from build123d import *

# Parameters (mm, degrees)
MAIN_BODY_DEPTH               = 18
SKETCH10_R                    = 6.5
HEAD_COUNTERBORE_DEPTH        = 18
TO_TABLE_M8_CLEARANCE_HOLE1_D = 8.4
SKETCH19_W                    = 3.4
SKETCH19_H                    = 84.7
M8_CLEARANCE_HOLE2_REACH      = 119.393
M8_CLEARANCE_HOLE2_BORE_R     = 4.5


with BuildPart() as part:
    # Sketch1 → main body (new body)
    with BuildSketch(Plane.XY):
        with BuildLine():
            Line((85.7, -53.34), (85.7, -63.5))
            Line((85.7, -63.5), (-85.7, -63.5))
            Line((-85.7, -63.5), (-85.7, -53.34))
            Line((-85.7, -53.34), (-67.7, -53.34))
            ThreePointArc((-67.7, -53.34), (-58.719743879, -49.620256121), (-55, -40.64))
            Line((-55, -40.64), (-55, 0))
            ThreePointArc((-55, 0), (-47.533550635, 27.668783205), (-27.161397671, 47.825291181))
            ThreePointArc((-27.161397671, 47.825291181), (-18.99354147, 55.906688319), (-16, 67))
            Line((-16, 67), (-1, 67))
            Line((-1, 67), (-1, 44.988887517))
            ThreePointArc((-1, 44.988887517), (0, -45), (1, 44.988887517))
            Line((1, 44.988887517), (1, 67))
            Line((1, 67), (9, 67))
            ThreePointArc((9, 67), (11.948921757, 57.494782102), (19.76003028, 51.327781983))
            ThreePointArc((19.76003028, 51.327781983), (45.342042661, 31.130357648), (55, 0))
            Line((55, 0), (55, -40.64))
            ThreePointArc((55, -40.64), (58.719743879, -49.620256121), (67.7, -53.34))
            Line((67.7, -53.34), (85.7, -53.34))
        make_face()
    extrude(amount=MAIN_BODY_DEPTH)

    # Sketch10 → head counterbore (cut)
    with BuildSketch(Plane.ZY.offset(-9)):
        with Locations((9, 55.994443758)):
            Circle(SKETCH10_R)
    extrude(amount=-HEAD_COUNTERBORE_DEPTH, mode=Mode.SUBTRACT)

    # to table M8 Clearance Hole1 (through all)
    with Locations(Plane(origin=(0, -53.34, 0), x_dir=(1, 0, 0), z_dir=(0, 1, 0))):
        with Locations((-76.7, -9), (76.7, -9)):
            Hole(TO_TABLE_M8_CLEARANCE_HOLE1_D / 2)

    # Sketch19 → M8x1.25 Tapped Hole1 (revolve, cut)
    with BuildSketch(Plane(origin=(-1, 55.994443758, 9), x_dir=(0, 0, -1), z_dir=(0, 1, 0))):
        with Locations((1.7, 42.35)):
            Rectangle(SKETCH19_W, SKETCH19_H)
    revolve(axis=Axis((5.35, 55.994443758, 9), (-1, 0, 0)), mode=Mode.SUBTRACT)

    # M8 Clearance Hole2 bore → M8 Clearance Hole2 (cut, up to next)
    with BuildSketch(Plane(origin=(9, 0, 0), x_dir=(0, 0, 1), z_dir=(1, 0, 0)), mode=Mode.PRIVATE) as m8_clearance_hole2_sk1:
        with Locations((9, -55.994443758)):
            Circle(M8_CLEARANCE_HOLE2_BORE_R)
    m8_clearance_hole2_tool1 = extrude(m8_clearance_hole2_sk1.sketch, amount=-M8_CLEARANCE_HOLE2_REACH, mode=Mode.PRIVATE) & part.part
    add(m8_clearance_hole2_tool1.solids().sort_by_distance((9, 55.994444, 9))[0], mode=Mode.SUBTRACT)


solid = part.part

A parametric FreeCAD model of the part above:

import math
import FreeCAD as App
import Part
import Sketcher
Q = App.Units.Quantity

doc = App.newDocument("Part")
body = doc.addObject("PartDesign::Body", "Body")

sketch1 = body.newObject("Sketcher::SketchObject", "Sketch")
sketch1.AttachmentSupport = (doc.getObject("XY_Plane"), [""])
sketch1.MapMode = "FlatFace"
sketch1.addGeometry([
    Part.LineSegment(App.Vector(85.7, -63.5, 0), App.Vector(85.7, -53.34, 0)),
    Part.LineSegment(App.Vector(85.7, -53.34, 0), App.Vector(67.7, -53.34, 0)),
    Part.ArcOfCircle(Part.Circle(App.Vector(67.7, -40.64, 0), App.Vector(0, 0, 1), 12.7), math.radians(180), math.radians(270)),
    Part.LineSegment(App.Vector(55, -40.64, 0), App.Vector(55, 0, 0)),
    Part.ArcOfCircle(Part.Circle(App.Vector(0, 0, 0), App.Vector(0, 0, 1), 55), math.radians(0), math.radians(68.944428)),
    Part.ArcOfCircle(Part.Circle(App.Vector(25.793478, 67, 0), App.Vector(0, 0, 1), 16.793478), math.radians(-180), math.radians(-111.055572)),
    Part.LineSegment(App.Vector(9, 67, 0), App.Vector(1, 67, 0)),
    Part.LineSegment(App.Vector(1, 67, 0), App.Vector(1, 44.988888, 0)),
    Part.ArcOfCircle(Part.Circle(App.Vector(0, 0, 0), App.Vector(0, 0, 1), 45), math.radians(91.273344), math.radians(448.726656)),
    Part.LineSegment(App.Vector(-1, 44.988888, 0), App.Vector(-1, 67, 0)),
    Part.LineSegment(App.Vector(-1, 67, 0), App.Vector(-16, 67, 0)),
    Part.ArcOfCircle(Part.Circle(App.Vector(-38.051282, 67, 0), App.Vector(0, 0, 1), 22.051282), math.radians(-60.406476), math.radians(0)),
    Part.ArcOfCircle(Part.Circle(App.Vector(0, 0, 0), App.Vector(0, 0, 1), 55), math.radians(119.593524), math.radians(180)),
    Part.LineSegment(App.Vector(-55, 0, 0), App.Vector(-55, -40.64, 0)),
    Part.ArcOfCircle(Part.Circle(App.Vector(-67.7, -40.64, 0), App.Vector(0, 0, 1), 12.7), math.radians(-90), math.radians(0)),
    Part.LineSegment(App.Vector(-67.7, -53.34, 0), App.Vector(-85.7, -53.34, 0)),
    Part.LineSegment(App.Vector(-85.7, -53.34, 0), App.Vector(-85.7, -63.5, 0)),
    Part.LineSegment(App.Vector(-85.7, -63.5, 0), App.Vector(85.7, -63.5, 0)),
], False)
sketch1.addConstraint([
    Sketcher.Constraint("Coincident", 0, 2, 1, 1),
    Sketcher.Constraint("Tangent", 1, 2, 2, 2),
    Sketcher.Constraint("Tangent", 2, 1, 3, 1),
    Sketcher.Constraint("Tangent", 3, 2, 4, 1),
    Sketcher.Constraint("Tangent", 4, 2, 5, 2),
    Sketcher.Constraint("Coincident", 5, 1, 6, 1),
    Sketcher.Constraint("Coincident", 6, 2, 7, 1),
    Sketcher.Constraint("Coincident", 7, 2, 8, 2),
    Sketcher.Constraint("Coincident", 8, 1, 9, 1),
    Sketcher.Constraint("Coincident", 9, 2, 10, 1),
    Sketcher.Constraint("Coincident", 10, 2, 11, 2),
    Sketcher.Constraint("Tangent", 11, 1, 12, 1),
    Sketcher.Constraint("Tangent", 12, 2, 13, 1),
    Sketcher.Constraint("Tangent", 13, 2, 14, 2),
    Sketcher.Constraint("Tangent", 14, 1, 15, 1),
    Sketcher.Constraint("Coincident", 15, 2, 16, 1),
    Sketcher.Constraint("Coincident", 16, 2, 17, 1),
    Sketcher.Constraint("Coincident", 17, 2, 0, 1),
    Sketcher.Constraint("Vertical", 0),
    Sketcher.Constraint("Horizontal", 1),
    Sketcher.Constraint("Vertical", 3),
    Sketcher.Constraint("Horizontal", 6),
    Sketcher.Constraint("Vertical", 7),
    Sketcher.Constraint("Vertical", 9),
    Sketcher.Constraint("Horizontal", 10),
    Sketcher.Constraint("Vertical", 13),
    Sketcher.Constraint("Horizontal", 15),
    Sketcher.Constraint("Vertical", 16),
    Sketcher.Constraint("Horizontal", 17),
    Sketcher.Constraint("Coincident", 4, 3, -1, 1),
    Sketcher.Constraint("Coincident", 8, 3, -1, 1),
    Sketcher.Constraint("Coincident", 12, 3, -1, 1),
    Sketcher.Constraint("Equal", 4, 12),
    Sketcher.Constraint("Equal", 2, 14),
    Sketcher.Constraint("Symmetric", 6, 2, 9, 2, -2),
    Sketcher.Constraint("Symmetric", 0, 2, 15, 2, -2),
    Sketcher.Constraint("Horizontal", 5, 3, 11, 3),
    Sketcher.Constraint("Horizontal", 11, 3, 5, 1),
    Sketcher.Constraint("Radius", 4, Q("55 mm")),
    Sketcher.Constraint("Radius", 8, Q("45 mm")),
    Sketcher.Constraint("Radius", 2, Q("12.7 mm")),
    Sketcher.Constraint("DistanceX", 1, 2, 1, 1, Q("18 mm")),
    Sketcher.Constraint("DistanceX", 6, 2, 6, 1, Q("8 mm")),
    Sketcher.Constraint("DistanceX", 10, 2, 10, 1, Q("15 mm")),
    Sketcher.Constraint("DistanceY", -1, 1, 5, 3, Q("67 mm")),
    Sketcher.Constraint("DistanceX", -1, 1, 5, 1, Q("9 mm")),
    Sketcher.Constraint("DistanceY", 0, 1, 0, 2, Q("10.16 mm")),
    Sketcher.Constraint("DistanceY", 3, 1, 3, 2, Q("40.64 mm")),
])
pad1 = body.newObject("PartDesign::Pad", "Pad")
pad1.Profile = sketch1
pad1.Length = 18

sketch2 = body.newObject("Sketcher::SketchObject", "Sketch001")
sketch2.AttachmentSupport = (doc.getObject("YZ_Plane"), [""])
sketch2.MapMode = "FlatFace"
sketch2.AttachmentOffset = App.Placement(App.Vector(0, 0, 9), App.Rotation())
sketch2.addGeometry(Part.Circle(App.Vector(55.994444, 9, 0), App.Vector(0, 0, 1), 6.5), False)
sketch2.addConstraint([
    Sketcher.Constraint("Diameter", 0, Q("13 mm")),
    Sketcher.Constraint("DistanceY", -1, 1, 0, 3, Q("9 mm")),
    Sketcher.Constraint("DistanceX", -1, 1, 0, 3, Q("55.994444 mm")),
])
pocket1 = body.newObject("PartDesign::Pocket", "Pocket")
pocket1.Profile = sketch2
pocket1.Length = 18
pocket1.Reversed = True

sketch3 = body.newObject("Sketcher::SketchObject", "Sketch002")
sketch3.AttachmentSupport = (doc.getObject("XZ_Plane"), [""])
sketch3.MapMode = "FlatFace"
sketch3.AttachmentOffset = App.Placement(App.Vector(0, 0, 53.34), App.Rotation())
sketch3.addGeometry([
    Part.Circle(App.Vector(-76.7, 9, 0), App.Vector(0, 0, 1), 4.2),
    Part.Circle(App.Vector(76.7, 9, 0), App.Vector(0, 0, 1), 4.2),
], False)
sketch3.addConstraint([
    Sketcher.Constraint("Equal", 0, 1),
    Sketcher.Constraint("Symmetric", 0, 3, 1, 3, -2),
    Sketcher.Constraint("Diameter", 0, Q("8.4 mm")),
    Sketcher.Constraint("DistanceY", -1, 1, 0, 3, Q("9 mm")),
    Sketcher.Constraint("DistanceX", 0, 3, -1, 1, Q("76.7 mm")),
])
doc.recompute()
hole = body.newObject("PartDesign::Hole", "Hole")
hole.Profile = sketch3
hole.ThreadType = "None"
hole.Diameter = 8.4
hole.DepthType = "ThroughAll"
hole.Reversed = True

sketch4 = body.newObject("Sketcher::SketchObject", "Sketch003")
sketch4.AttachmentSupport = (doc.getObject("XZ_Plane"), [""])
sketch4.MapMode = "FlatFace"
sketch4.AttachmentOffset = App.Placement(App.Vector(0, 0, -55.994444), App.Rotation())
sketch4.addGeometry([
    Part.LineSegment(App.Vector(-85.7, 9, 0), App.Vector(-1, 9, 0)),
    Part.LineSegment(App.Vector(-1, 9, 0), App.Vector(-1, 5.6, 0)),
    Part.LineSegment(App.Vector(-1, 5.6, 0), App.Vector(-85.7, 5.6, 0)),
    Part.LineSegment(App.Vector(-85.7, 5.6, 0), App.Vector(-85.7, 9, 0)),
], False)
sketch4.addGeometry(Part.LineSegment(App.Vector(-1, 9, 0), App.Vector(-85.7, 9, 0)), True)
sketch4.addConstraint([
    Sketcher.Constraint("Coincident", 0, 2, 1, 1),
    Sketcher.Constraint("Coincident", 1, 2, 2, 1),
    Sketcher.Constraint("Coincident", 2, 2, 3, 1),
    Sketcher.Constraint("Coincident", 3, 2, 0, 1),
    Sketcher.Constraint("Horizontal", 0),
    Sketcher.Constraint("Vertical", 1),
    Sketcher.Constraint("Horizontal", 2),
    Sketcher.Constraint("Vertical", 3),
    Sketcher.Constraint("Horizontal", 4),
    Sketcher.Constraint("Coincident", 4, 1, 0, 2),
    Sketcher.Constraint("Vertical", 2, 2, 4, 2),
    Sketcher.Constraint("DistanceX", 0, 1, 0, 2, Q("84.7 mm")),
    Sketcher.Constraint("DistanceY", 1, 2, 1, 1, Q("3.4 mm")),
    Sketcher.Constraint("DistanceX", 0, 2, -1, 1, Q("1 mm")),
    Sketcher.Constraint("DistanceY", -1, 1, 0, 2, Q("9 mm")),
])
groove = body.newObject("PartDesign::Groove", "Groove")
groove.Profile = sketch4
groove.ReferenceAxis = (sketch4, ["Axis0"])
groove.Angle = 360

sketch5 = body.newObject("Sketcher::SketchObject", "Sketch004")
sketch5.AttachmentSupport = (doc.getObject("YZ_Plane"), [""])
sketch5.MapMode = "FlatFace"
sketch5.AttachmentOffset = App.Placement(App.Vector(0, 0, 9), App.Rotation())
sketch5.addGeometry(Part.Circle(App.Vector(55.994444, 9, 0), App.Vector(0, 0, 1), 4.5), False)
sketch5.addConstraint([
    Sketcher.Constraint("Diameter", 0, Q("9 mm")),
    Sketcher.Constraint("DistanceY", -1, 1, 0, 3, Q("9 mm")),
    Sketcher.Constraint("DistanceX", -1, 1, 0, 3, Q("55.994444 mm")),
])
pocket2 = body.newObject("PartDesign::Pocket", "Pocket001")
pocket2.Profile = sketch5
pocket2.Type = "UpToFirst"

doc.recompute()
